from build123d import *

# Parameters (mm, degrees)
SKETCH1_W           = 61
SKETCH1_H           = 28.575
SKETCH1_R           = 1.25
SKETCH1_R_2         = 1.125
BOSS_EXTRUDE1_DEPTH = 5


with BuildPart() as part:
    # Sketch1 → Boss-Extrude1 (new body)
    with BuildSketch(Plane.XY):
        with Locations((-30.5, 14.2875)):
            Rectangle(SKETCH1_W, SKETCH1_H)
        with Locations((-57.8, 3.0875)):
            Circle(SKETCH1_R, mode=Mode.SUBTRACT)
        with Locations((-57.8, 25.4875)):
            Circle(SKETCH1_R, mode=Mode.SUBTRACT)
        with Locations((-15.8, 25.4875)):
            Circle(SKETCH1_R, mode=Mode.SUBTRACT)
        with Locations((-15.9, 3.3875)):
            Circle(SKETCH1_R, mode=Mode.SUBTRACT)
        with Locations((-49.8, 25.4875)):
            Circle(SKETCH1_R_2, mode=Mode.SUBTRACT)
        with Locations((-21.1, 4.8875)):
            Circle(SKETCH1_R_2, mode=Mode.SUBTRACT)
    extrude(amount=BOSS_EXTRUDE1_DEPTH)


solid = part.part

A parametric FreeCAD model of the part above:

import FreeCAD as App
import Part
import Sketcher

doc = App.newDocument("Part")
body = doc.addObject("PartDesign::Body", "Body")

# Sketch on XY plane
sketch1 = body.newObject("Sketcher::SketchObject", "Sketch")
sketch1.AttachmentSupport = (doc.getObject("XY_Plane"), [""])
sketch1.MapMode = "FlatFace"
sketch1.addGeometry(Part.LineSegment(App.Vector(-61, 28.6, 0), App.Vector(-61, 0, 0)), False)
sketch1.addGeometry(Part.LineSegment(App.Vector(-61, 0, 0), App.Vector(0, 0, 0)), False)
sketch1.addGeometry(Part.LineSegment(App.Vector(0, 0, 0), App.Vector(0, 28.6, 0)), False)
sketch1.addGeometry(Part.LineSegment(App.Vector(0, 28.6, 0), App.Vector(-61, 28.6, 0)), False)
sketch1.addGeometry(Part.Circle(App.Vector(-57.8, 3.1, 0), App.Vector(0, 0, 1), 1.2), False)
sketch1.addGeometry(Part.Circle(App.Vector(-21.1, 4.9, 0), App.Vector(0, 0, 1), 1.1), False)
sketch1.addGeometry(Part.Circle(App.Vector(-15.9, 3.4, 0), App.Vector(0, 0, 1), 1.2), False)
sketch1.addGeometry(Part.Circle(App.Vector(-57.8, 25.5, 0), App.Vector(0, 0, 1), 1.2), False)
sketch1.addGeometry(Part.Circle(App.Vector(-49.8, 25.5, 0), App.Vector(0, 0, 1), 1.1), False)
sketch1.addGeometry(Part.Circle(App.Vector(-15.8, 25.5, 0), App.Vector(0, 0, 1), 1.2), False)
sketch1.addConstraint(Sketcher.Constraint("Coincident", 0, 2, 1, 1))
sketch1.addConstraint(Sketcher.Constraint("Coincident", 1, 2, 2, 1))
sketch1.addConstraint(Sketcher.Constraint("Coincident", 2, 2, 3, 1))
sketch1.addConstraint(Sketcher.Constraint("Coincident", 3, 2, 0, 1))
sketch1.addConstraint(Sketcher.Constraint("Vertical", 0))
sketch1.addConstraint(Sketcher.Constraint("Horizontal", 1))
sketch1.addConstraint(Sketcher.Constraint("Vertical", 2))
sketch1.addConstraint(Sketcher.Constraint("Horizontal", 3))
sketch1.addConstraint(Sketcher.Constraint("Coincident", 1, 2, -1, 1))
sketch1.addConstraint(Sketcher.Constraint("Equal", 4, 6))
sketch1.addConstraint(Sketcher.Constraint("Equal", 6, 7))
sketch1.addConstraint(Sketcher.Constraint("Equal", 5, 8))
sketch1.addConstraint(Sketcher.Constraint("Equal", 7, 9))
sketch1.addConstraint(Sketcher.Constraint("Horizontal", 7, 3, 8, 3))
sketch1.addConstraint(Sketcher.Constraint("Horizontal", 8, 3, 9, 3))
sketch1.addConstraint(Sketcher.Constraint("Vertical", 4, 3, 7, 3))
sketch1.addConstraint(Sketcher.Constraint("Diameter", 4, 2.5))
sketch1.addConstraint(Sketcher.Constraint("Diameter", 5, 2.25))
sketch1.addConstraint(Sketcher.Constraint("DistanceX", 1, 1, 1, 2, 61.0))
sketch1.addConstraint(Sketcher.Constraint("DistanceX", 7, 3, 8, 3, 8.0))
sketch1.addConstraint(Sketcher.Constraint("DistanceX", 8, 3, 9, 3, 34.0))
sketch1.addConstraint(Sketcher.Constraint("DistanceX", 4, 3, -1, 1, 57.8))
sketch1.addConstraint(Sketcher.Constraint("DistanceX", 5, 3, -1, 1, 21.1))
sketch1.addConstraint(Sketcher.Constraint("DistanceX", 6, 3, -1, 1, 15.9))
sketch1.addConstraint(Sketcher.Constraint("DistanceY", 4, 3, 5, 3, 1.8))
sketch1.addConstraint(Sketcher.Constraint("DistanceY", 6, 3, 5, 3, 1.5))
sketch1.addConstraint(Sketcher.Constraint("DistanceY", 4, 3, 7, 3, 22.4))
sketch1.addConstraint(Sketcher.Constraint("DistanceY", 0, 2, 0, 1, 28.575))
sketch1.addConstraint(Sketcher.Constraint("DistanceY", -1, 1, 4, 3, 3.0875))
pad1 = body.newObject("PartDesign::Pad", "Pad")
pad1.Profile = sketch1
pad1.Length = 5

doc.recompute()
